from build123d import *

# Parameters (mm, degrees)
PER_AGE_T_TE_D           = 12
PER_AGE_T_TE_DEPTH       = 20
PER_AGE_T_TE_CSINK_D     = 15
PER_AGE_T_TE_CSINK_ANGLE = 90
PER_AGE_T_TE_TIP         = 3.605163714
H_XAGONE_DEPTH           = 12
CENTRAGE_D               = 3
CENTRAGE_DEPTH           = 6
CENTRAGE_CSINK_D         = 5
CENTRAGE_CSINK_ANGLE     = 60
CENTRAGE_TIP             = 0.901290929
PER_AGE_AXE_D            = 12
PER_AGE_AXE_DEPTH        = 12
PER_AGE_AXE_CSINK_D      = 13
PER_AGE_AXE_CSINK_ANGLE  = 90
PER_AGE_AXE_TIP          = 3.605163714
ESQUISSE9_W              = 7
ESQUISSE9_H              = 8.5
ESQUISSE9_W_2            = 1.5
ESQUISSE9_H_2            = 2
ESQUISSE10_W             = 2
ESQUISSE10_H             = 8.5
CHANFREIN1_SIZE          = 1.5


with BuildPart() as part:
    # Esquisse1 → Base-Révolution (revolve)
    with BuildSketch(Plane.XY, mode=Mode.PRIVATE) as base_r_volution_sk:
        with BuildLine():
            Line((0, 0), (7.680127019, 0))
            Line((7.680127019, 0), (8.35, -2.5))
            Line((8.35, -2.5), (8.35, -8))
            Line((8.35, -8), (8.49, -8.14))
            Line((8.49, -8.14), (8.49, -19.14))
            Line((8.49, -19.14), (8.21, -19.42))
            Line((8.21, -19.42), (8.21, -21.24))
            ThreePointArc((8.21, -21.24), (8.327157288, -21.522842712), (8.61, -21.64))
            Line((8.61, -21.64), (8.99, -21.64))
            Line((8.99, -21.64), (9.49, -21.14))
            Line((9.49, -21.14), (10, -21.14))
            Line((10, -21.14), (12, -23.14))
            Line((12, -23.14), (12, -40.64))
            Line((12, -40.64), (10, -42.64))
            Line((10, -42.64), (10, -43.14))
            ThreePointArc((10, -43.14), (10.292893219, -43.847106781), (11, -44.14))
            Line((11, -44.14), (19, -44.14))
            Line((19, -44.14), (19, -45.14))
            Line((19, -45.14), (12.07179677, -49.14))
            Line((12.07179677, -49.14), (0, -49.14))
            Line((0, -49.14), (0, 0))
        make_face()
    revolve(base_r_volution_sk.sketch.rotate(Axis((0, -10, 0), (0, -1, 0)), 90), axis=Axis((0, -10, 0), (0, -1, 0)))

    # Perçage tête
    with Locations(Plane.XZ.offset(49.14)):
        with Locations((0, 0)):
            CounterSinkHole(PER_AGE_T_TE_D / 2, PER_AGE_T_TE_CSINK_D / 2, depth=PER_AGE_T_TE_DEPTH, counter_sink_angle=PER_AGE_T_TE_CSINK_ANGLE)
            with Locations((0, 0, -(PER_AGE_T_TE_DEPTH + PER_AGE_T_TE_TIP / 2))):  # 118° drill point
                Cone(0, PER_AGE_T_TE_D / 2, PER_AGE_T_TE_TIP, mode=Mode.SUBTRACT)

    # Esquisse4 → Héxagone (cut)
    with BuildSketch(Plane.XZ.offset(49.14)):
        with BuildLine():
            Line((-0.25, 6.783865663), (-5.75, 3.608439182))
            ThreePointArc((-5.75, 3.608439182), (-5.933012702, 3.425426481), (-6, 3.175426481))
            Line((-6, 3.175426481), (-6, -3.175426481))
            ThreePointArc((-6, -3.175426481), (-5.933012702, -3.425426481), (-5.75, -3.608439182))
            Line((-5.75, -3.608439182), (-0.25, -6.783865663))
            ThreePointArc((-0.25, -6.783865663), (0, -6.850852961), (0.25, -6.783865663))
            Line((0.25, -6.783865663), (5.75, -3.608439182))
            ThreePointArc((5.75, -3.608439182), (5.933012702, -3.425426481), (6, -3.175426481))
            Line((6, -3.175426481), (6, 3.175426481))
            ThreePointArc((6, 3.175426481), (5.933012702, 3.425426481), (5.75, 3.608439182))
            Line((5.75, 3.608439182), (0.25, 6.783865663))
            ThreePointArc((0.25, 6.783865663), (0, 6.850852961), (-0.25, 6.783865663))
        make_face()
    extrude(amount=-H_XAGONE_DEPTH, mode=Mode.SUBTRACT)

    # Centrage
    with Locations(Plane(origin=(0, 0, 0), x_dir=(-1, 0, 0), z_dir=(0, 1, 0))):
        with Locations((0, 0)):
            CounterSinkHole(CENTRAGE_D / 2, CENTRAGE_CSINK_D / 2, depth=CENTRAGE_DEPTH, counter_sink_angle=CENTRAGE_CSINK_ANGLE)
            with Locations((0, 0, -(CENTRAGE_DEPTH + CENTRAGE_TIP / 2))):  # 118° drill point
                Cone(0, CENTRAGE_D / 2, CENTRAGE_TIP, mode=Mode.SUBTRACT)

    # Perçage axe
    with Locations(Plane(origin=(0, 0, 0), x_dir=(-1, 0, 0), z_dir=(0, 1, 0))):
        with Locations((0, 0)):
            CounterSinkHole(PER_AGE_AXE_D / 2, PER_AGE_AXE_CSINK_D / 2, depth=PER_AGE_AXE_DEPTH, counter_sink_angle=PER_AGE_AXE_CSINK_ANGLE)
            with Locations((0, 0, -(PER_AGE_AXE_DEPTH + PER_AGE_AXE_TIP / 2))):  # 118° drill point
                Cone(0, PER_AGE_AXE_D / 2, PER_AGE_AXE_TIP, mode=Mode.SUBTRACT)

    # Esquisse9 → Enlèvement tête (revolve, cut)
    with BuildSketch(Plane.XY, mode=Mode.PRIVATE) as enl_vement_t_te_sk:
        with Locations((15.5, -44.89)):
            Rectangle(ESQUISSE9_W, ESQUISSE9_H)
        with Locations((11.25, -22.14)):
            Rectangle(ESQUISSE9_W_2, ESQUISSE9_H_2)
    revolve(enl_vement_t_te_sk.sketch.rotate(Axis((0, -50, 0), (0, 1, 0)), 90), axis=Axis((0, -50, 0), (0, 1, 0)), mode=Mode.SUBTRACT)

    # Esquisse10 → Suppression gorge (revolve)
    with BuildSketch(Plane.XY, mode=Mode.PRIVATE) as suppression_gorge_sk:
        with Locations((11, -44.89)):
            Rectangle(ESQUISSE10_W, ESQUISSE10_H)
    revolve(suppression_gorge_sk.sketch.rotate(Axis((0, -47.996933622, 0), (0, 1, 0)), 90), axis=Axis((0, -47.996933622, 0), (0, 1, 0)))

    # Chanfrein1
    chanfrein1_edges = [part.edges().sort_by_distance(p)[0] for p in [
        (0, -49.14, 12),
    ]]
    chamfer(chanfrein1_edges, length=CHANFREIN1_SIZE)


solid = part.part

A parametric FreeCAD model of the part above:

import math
import FreeCAD as App
import Part
import Sketcher

V = App.Vector
Q = App.Units.Quantity


def edges_at(feature, points):
    """Names of the edges that pass closest to the given points."""
    edges = feature.Shape.Edges
    near = lambda p: min(range(len(edges)), key=lambda i: edges[i].distToShape(Part.Vertex(*p))[0])
    return sorted({f"Edge{near(p) + 1}" for p in points})

doc = App.newDocument("Part")
body = doc.addObject("PartDesign::Body", "Body")

# Sketch on XY plane
sketch1 = body.newObject("Sketcher::SketchObject", "Sketch")
sketch1.AttachmentSupport = (doc.getObject("XY_Plane"), [""])
sketch1.MapMode = "FlatFace"
sketch1.addGeometry(Part.LineSegment(V(7.68, 0, 0), V(0, 0, 0)), False)
sketch1.addGeometry(Part.LineSegment(V(0, 0, 0), V(0, -49.14, 0)), False)
sketch1.addGeometry(Part.LineSegment(V(0, -49.14, 0), V(12.07, -49.14, 0)), False)
sketch1.addGeometry(Part.LineSegment(V(12.07, -49.14, 0), V(19, -45.14, 0)), False)
sketch1.addGeometry(Part.LineSegment(V(19, -45.14, 0), V(19, -44.14, 0)), False)
sketch1.addGeometry(Part.LineSegment(V(19, -44.14, 0), V(11, -44.14, 0)), False)
sketch1.addGeometry(Part.ArcOfCircle(Part.Circle(V(11, -43.14, 0), V(0, 0, 1), 1), math.radians(-180), math.radians(-90)), False)
sketch1.addGeometry(Part.LineSegment(V(10, -43.14, 0), V(10, -42.64, 0)), False)
sketch1.addGeometry(Part.LineSegment(V(10, -42.64, 0), V(12, -40.64, 0)), False)
sketch1.addGeometry(Part.LineSegment(V(12, -40.64, 0), V(12, -23.14, 0)), False)
sketch1.addGeometry(Part.LineSegment(V(12, -23.14, 0), V(10, -21.14, 0)), False)
sketch1.addGeometry(Part.LineSegment(V(10, -21.14, 0), V(9.49, -21.14, 0)), False)
sketch1.addGeometry(Part.LineSegment(V(9.49, -21.14, 0), V(8.99, -21.64, 0)), False)
sketch1.addGeometry(Part.LineSegment(V(8.99, -21.64, 0), V(8.61, -21.64, 0)), False)
sketch1.addGeometry(Part.ArcOfCircle(Part.Circle(V(8.61, -21.24, 0), V(0, 0, 1), 0.4), math.radians(-180), math.radians(-90)), False)
sketch1.addGeometry(Part.LineSegment(V(8.21, -21.24, 0), V(8.21, -19.42, 0)), False)
sketch1.addGeometry(Part.LineSegment(V(8.21, -19.42, 0), V(8.49, -19.14, 0)), False)
sketch1.addGeometry(Part.LineSegment(V(8.49, -19.14, 0), V(8.49, -8.14, 0)), False)
sketch1.addGeometry(Part.LineSegment(V(8.49, -8.14, 0), V(8.35, -8, 0)), False)
sketch1.addGeometry(Part.LineSegment(V(8.35, -8, 0), V(8.35, -2.5, 0)), False)
sketch1.addGeometry(Part.LineSegment(V(8.35, -2.5, 0), V(7.68, 0, 0)), False)
sketch1.addConstraint(Sketcher.Constraint("Coincident", 0, 2, 1, 1))
sketch1.addConstraint(Sketcher.Constraint("Coincident", 1, 2, 2, 1))
sketch1.addConstraint(Sketcher.Constraint("Coincident", 2, 2, 3, 1))
sketch1.addConstraint(Sketcher.Constraint("Coincident", 3, 2, 4, 1))
sketch1.addConstraint(Sketcher.Constraint("Coincident", 4, 2, 5, 1))
sketch1.addConstraint(Sketcher.Constraint("Tangent", 5, 2, 6, 2))
sketch1.addConstraint(Sketcher.Constraint("Tangent", 6, 1, 7, 1))
sketch1.addConstraint(Sketcher.Constraint("Coincident", 7, 2, 8, 1))
sketch1.addConstraint(Sketcher.Constraint("Coincident", 8, 2, 9, 1))
sketch1.addConstraint(Sketcher.Constraint("Coincident", 9, 2, 10, 1))
sketch1.addConstraint(Sketcher.Constraint("Coincident", 10, 2, 11, 1))
sketch1.addConstraint(Sketcher.Constraint("Coincident", 11, 2, 12, 1))
sketch1.addConstraint(Sketcher.Constraint("Coincident", 12, 2, 13, 1))
sketch1.addConstraint(Sketcher.Constraint("Tangent", 13, 2, 14, 2))
sketch1.addConstraint(Sketcher.Constraint("Tangent", 14, 1, 15, 1))
sketch1.addConstraint(Sketcher.Constraint("Coincident", 15, 2, 16, 1))
sketch1.addConstraint(Sketcher.Constraint("Coincident", 16, 2, 17, 1))
sketch1.addConstraint(Sketcher.Constraint("Coincident", 17, 2, 18, 1))
sketch1.addConstraint(Sketcher.Constraint("Coincident", 18, 2, 19, 1))
sketch1.addConstraint(Sketcher.Constraint("Coincident", 19, 2, 20, 1))
sketch1.addConstraint(Sketcher.Constraint("Coincident", 20, 2, 0, 1))
sketch1.addConstraint(Sketcher.Constraint("Horizontal", 0))
sketch1.addConstraint(Sketcher.Constraint("Vertical", 1))
sketch1.addConstraint(Sketcher.Constraint("Horizontal", 2))
sketch1.addConstraint(Sketcher.Constraint("Vertical", 4))
sketch1.addConstraint(Sketcher.Constraint("Horizontal", 5))
sketch1.addConstraint(Sketcher.Constraint("Vertical", 7))
sketch1.addConstraint(Sketcher.Constraint("Vertical", 9))
sketch1.addConstraint(Sketcher.Constraint("Horizontal", 11))
sketch1.addConstraint(Sketcher.Constraint("Horizontal", 13))
sketch1.addConstraint(Sketcher.Constraint("Vertical", 15))
sketch1.addConstraint(Sketcher.Constraint("Vertical", 17))
sketch1.addConstraint(Sketcher.Constraint("Vertical", 19))
sketch1.addConstraint(Sketcher.Constraint("Coincident", 0, 2, -1, 1))
sketch1.addConstraint(Sketcher.Constraint("Perpendicular", 8, 10))
sketch1.addConstraint(Sketcher.Constraint("Perpendicular", 10, 12))
sketch1.addConstraint(Sketcher.Constraint("Parallel", 12, 16))
sketch1.addConstraint(Sketcher.Constraint("Perpendicular", 16, 18))
sketch1.addConstraint(Sketcher.Constraint("Vertical", 7, 2, 10, 2))
sketch1.addConstraint(Sketcher.Constraint("Equal", 8, 10))
sketch1.addConstraint(Sketcher.Constraint("Radius", 6, Q("1 mm")))
sketch1.addConstraint(Sketcher.Constraint("Radius", 14, Q("0.4 mm")))
sketch1.addConstraint(Sketcher.Constraint("DistanceX", 5, 2, 5, 1, Q("8 mm")))
sketch1.addConstraint(Sketcher.Constraint("DistanceY", 4, 1, 4, 2, Q("1 mm")))
sketch1.addConstraint(Sketcher.Constraint("DistanceY", 17, 1, 17, 2, Q("11 mm")))
sketch1.addConstraint(Sketcher.Constraint("Angle", 3, Q("30 deg")))
sketch1.addConstraint(Sketcher.Constraint("Angle", 20, Q("105 deg")))
sketch1.addConstraint(Sketcher.Constraint("Distance", 3, Q("8 mm")))
sketch1.addConstraint(Sketcher.Constraint("DistanceY", 7, 1, 7, 2, Q("0.5 mm")))
sketch1.addConstraint(Sketcher.Constraint("DistanceY", 9, 1, 9, 2, Q("17.5 mm")))
sketch1.addConstraint(Sketcher.Constraint("DistanceY", 19, 1, 19, 2, Q("5.5 mm")))
sketch1.addConstraint(Sketcher.Constraint("DistanceX", -1, 1, 6, 3, Q("11 mm")))
sketch1.addConstraint(Sketcher.Constraint("DistanceX", -1, 1, 8, 2, Q("12 mm")))
sketch1.addConstraint(Sketcher.Constraint("DistanceY", 18, 2, -1, 1, Q("8 mm")))
sketch1.addConstraint(Sketcher.Constraint("DistanceY", 8, 2, 12, 2, Q("19 mm")))
sketch1.addConstraint(Sketcher.Constraint("DistanceX", 16, 2, 11, 2, Q("1 mm")))
sketch1.addConstraint(Sketcher.Constraint("DistanceY", 11, 2, 16, 2, Q("2 mm")))
sketch1.addConstraint(Sketcher.Constraint("DistanceX", 11, 2, 11, 1, Q("0.51 mm")))
sketch1.addConstraint(Sketcher.Constraint("DistanceX", 13, 2, 13, 1, Q("0.38 mm")))
sketch1.addConstraint(Sketcher.Constraint("DistanceY", 1, 2, 1, 1, Q("49.14 mm")))
revolution = body.newObject("PartDesign::Revolution", "Revolution")
revolution.Profile = sketch1
revolution.ReferenceAxis = (sketch1, ["V_Axis"])
revolution.Angle = 360

# Sketch on XZ plane
sketch2 = body.newObject("Sketcher::SketchObject", "Sketch001")
sketch2.AttachmentSupport = (doc.getObject("XZ_Plane"), [""])
sketch2.MapMode = "FlatFace"
sketch2.AttachmentOffset = App.Placement(V(0, 0, 49.14), App.Rotation())
sketch2.addGeometry(Part.Circle(V(0, 0, 0), V(0, 0, 1), 6), False)
sketch2.addConstraint(Sketcher.Constraint("Coincident", 0, 3, -1, 1))
sketch2.addConstraint(Sketcher.Constraint("Diameter", 0, Q("12 mm")))
doc.recompute()
hole = body.newObject("PartDesign::Hole", "Hole")
hole.Profile = sketch2
hole.ThreadType = "None"
hole.Diameter = 12
hole.DepthType = "Dimension"
hole.Depth = 20
hole.DrillPoint = "Angled"
hole.DrillPointAngle = 118
hole.HoleCutType = "Countersink"
hole.HoleCutDiameter = 15
hole.HoleCutCountersinkAngle = 90

# Sketch on XZ plane
sketch3 = body.newObject("Sketcher::SketchObject", "Sketch002")
sketch3.AttachmentSupport = (doc.getObject("XZ_Plane"), [""])
sketch3.MapMode = "FlatFace"
sketch3.AttachmentOffset = App.Placement(V(0, 0, 49.14), App.Rotation())
sketch3.addGeometry(Part.LineSegment(V(-0.25, 6.78, 0), V(-5.75, 3.61, 0)), False)
sketch3.addGeometry(Part.ArcOfCircle(Part.Circle(V(-5.5, 3.18, 0), V(0, 0, 1), 0.5), math.radians(120), math.radians(180)), False)
sketch3.addGeometry(Part.LineSegment(V(-6, 3.18, 0), V(-6, -3.18, 0)), False)
sketch3.addGeometry(Part.ArcOfCircle(Part.Circle(V(-5.5, -3.18, 0), V(0, 0, 1), 0.5), math.radians(180), math.radians(240)), False)
sketch3.addGeometry(Part.LineSegment(V(-5.75, -3.61, 0), V(-0.25, -6.78, 0)), False)
sketch3.addGeometry(Part.ArcOfCircle(Part.Circle(V(0, -6.35, 0), V(0, 0, 1), 0.5), math.radians(-120), math.radians(-60)), False)
sketch3.addGeometry(Part.LineSegment(V(0.25, -6.78, 0), V(5.75, -3.61, 0)), False)
sketch3.addGeometry(Part.ArcOfCircle(Part.Circle(V(5.5, -3.18, 0), V(0, 0, 1), 0.5), math.radians(-60), math.radians(0)), False)
sketch3.addGeometry(Part.LineSegment(V(6, -3.18, 0), V(6, 3.18, 0)), False)
sketch3.addGeometry(Part.ArcOfCircle(Part.Circle(V(5.5, 3.18, 0), V(0, 0, 1), 0.5), math.radians(0), math.radians(60)), False)
sketch3.addGeometry(Part.LineSegment(V(5.75, 3.61, 0), V(0.25, 6.78, 0)), False)
sketch3.addGeometry(Part.ArcOfCircle(Part.Circle(V(0, 6.35, 0), V(0, 0, 1), 0.5), math.radians(60), math.radians(120)), False)
sketch3.addConstraint(Sketcher.Constraint("Tangent", 0, 2, 1, 1))
sketch3.addConstraint(Sketcher.Constraint("Tangent", 1, 2, 2, 1))
sketch3.addConstraint(Sketcher.Constraint("Tangent", 2, 2, 3, 1))
sketch3.addConstraint(Sketcher.Constraint("Tangent", 3, 2, 4, 1))
sketch3.addConstraint(Sketcher.Constraint("Tangent", 4, 2, 5, 1))
sketch3.addConstraint(Sketcher.Constraint("Tangent", 5, 2, 6, 1))
sketch3.addConstraint(Sketcher.Constraint("Tangent", 6, 2, 7, 1))
sketch3.addConstraint(Sketcher.Constraint("Tangent", 7, 2, 8, 1))
sketch3.addConstraint(Sketcher.Constraint("Tangent", 8, 2, 9, 1))
sketch3.addConstraint(Sketcher.Constraint("Tangent", 9, 2, 10, 1))
sketch3.addConstraint(Sketcher.Constraint("Tangent", 10, 2, 11, 1))
sketch3.addConstraint(Sketcher.Constraint("Tangent", 11, 2, 0, 1))
sketch3.addConstraint(Sketcher.Constraint("Vertical", 2))
sketch3.addConstraint(Sketcher.Constraint("Vertical", 8))
sketch3.addConstraint(Sketcher.Constraint("Equal", 1, 3))
sketch3.addConstraint(Sketcher.Constraint("Equal", 3, 5))
sketch3.addConstraint(Sketcher.Constraint("Equal", 5, 7))
sketch3.addConstraint(Sketcher.Constraint("Equal", 7, 9))
sketch3.addConstraint(Sketcher.Constraint("Equal", 9, 11))
sketch3.addConstraint(Sketcher.Constraint("Symmetric", 1, 3, 7, 3, -1, 1))
sketch3.addConstraint(Sketcher.Constraint("Symmetric", 5, 3, 11, 3, -1, 1))
sketch3.addConstraint(Sketcher.Constraint("Symmetric", 4, 2, 5, 2, -2))
sketch3.addConstraint(Sketcher.Constraint("Parallel", 4, 10))
sketch3.addConstraint(Sketcher.Constraint("Radius", 1, Q("0.5 mm")))
sketch3.addConstraint(Sketcher.Constraint("Angle", 0, Q("-150 deg")))
sketch3.addConstraint(Sketcher.Constraint("DistanceX", 1, 2, -1, 1, Q("6 mm")))
sketch3.addConstraint(Sketcher.Constraint("DistanceY", 2, 2, 2, 1, Q("6.350853 mm")))
pocket1 = body.newObject("PartDesign::Pocket", "Pocket")
pocket1.Profile = sketch3
pocket1.Length = 12

# Sketch on XZ plane
sketch4 = body.newObject("Sketcher::SketchObject", "Sketch003")
sketch4.AttachmentSupport = (doc.getObject("XZ_Plane"), [""])
sketch4.MapMode = "FlatFace"
sketch4.addGeometry(Part.Circle(V(0, 0, 0), V(0, 0, 1), 1.5), False)
sketch4.addConstraint(Sketcher.Constraint("Coincident", 0, 3, -1, 1))
sketch4.addConstraint(Sketcher.Constraint("Diameter", 0, Q("3 mm")))
doc.recompute()
hole2 = body.newObject("PartDesign::Hole", "Hole001")
hole2.Profile = sketch4
hole2.ThreadType = "None"
hole2.Diameter = 3
hole2.DepthType = "Dimension"
hole2.Depth = 6
hole2.DrillPoint = "Angled"
hole2.DrillPointAngle = 118
hole2.HoleCutType = "Countersink"
hole2.HoleCutDiameter = 5
hole2.HoleCutCountersinkAngle = 60
hole2.Reversed = True

# Sketch on XZ plane
sketch5 = body.newObject("Sketcher::SketchObject", "Sketch004")
sketch5.AttachmentSupport = (doc.getObject("XZ_Plane"), [""])
sketch5.MapMode = "FlatFace"
sketch5.addGeometry(Part.Circle(V(0, 0, 0), V(0, 0, 1), 6), False)
sketch5.addConstraint(Sketcher.Constraint("Coincident", 0, 3, -1, 1))
sketch5.addConstraint(Sketcher.Constraint("Diameter", 0, Q("12 mm")))
doc.recompute()
hole3 = body.newObject("PartDesign::Hole", "Hole002")
hole3.Profile = sketch5
hole3.ThreadType = "None"
hole3.Diameter = 12
hole3.DepthType = "Dimension"
hole3.Depth = 12
hole3.DrillPoint = "Angled"
hole3.DrillPointAngle = 118
hole3.HoleCutType = "Countersink"
hole3.HoleCutDiameter = 13
hole3.HoleCutCountersinkAngle = 90
hole3.Reversed = True

# Sketch on XY plane
sketch6 = body.newObject("Sketcher::SketchObject", "Sketch005")
sketch6.AttachmentSupport = (doc.getObject("XY_Plane"), [""])
sketch6.MapMode = "FlatFace"
sketch6.addGeometry(Part.LineSegment(V(12, -40.6, 0), V(12, -49.1, 0)), False)
sketch6.addGeometry(Part.LineSegment(V(12, -49.1, 0), V(19, -49.1, 0)), False)
sketch6.addGeometry(Part.LineSegment(V(19, -49.1, 0), V(19, -40.6, 0)), False)
sketch6.addGeometry(Part.LineSegment(V(19, -40.6, 0), V(12, -40.6, 0)), False)
sketch6.addGeometry(Part.LineSegment(V(10.5, -21.1, 0), V(10.5, -23.1, 0)), False)
sketch6.addGeometry(Part.LineSegment(V(10.5, -23.1, 0), V(12, -23.1, 0)), False)
sketch6.addGeometry(Part.LineSegment(V(12, -23.1, 0), V(12, -21.1, 0)), False)
sketch6.addGeometry(Part.LineSegment(V(12, -21.1, 0), V(10.5, -21.1, 0)), False)
sketch6.addConstraint(Sketcher.Constraint("Coincident", 0, 2, 1, 1))
sketch6.addConstraint(Sketcher.Constraint("Coincident", 1, 2, 2, 1))
sketch6.addConstraint(Sketcher.Constraint("Coincident", 2, 2, 3, 1))
sketch6.addConstraint(Sketcher.Constraint("Coincident", 3, 2, 0, 1))
sketch6.addConstraint(Sketcher.Constraint("Coincident", 4, 2, 5, 1))
sketch6.addConstraint(Sketcher.Constraint("Coincident", 5, 2, 6, 1))
sketch6.addConstraint(Sketcher.Constraint("Coincident", 6, 2, 7, 1))
sketch6.addConstraint(Sketcher.Constraint("Coincident", 7, 2, 4, 1))
sketch6.addConstraint(Sketcher.Constraint("Vertical", 0))
sketch6.addConstraint(Sketcher.Constraint("Horizontal", 1))
sketch6.addConstraint(Sketcher.Constraint("Vertical", 2))
sketch6.addConstraint(Sketcher.Constraint("Horizontal", 3))
sketch6.addConstraint(Sketcher.Constraint("Vertical", 4))
sketch6.addConstraint(Sketcher.Constraint("Horizontal", 5))
sketch6.addConstraint(Sketcher.Constraint("Vertical", 6))
sketch6.addConstraint(Sketcher.Constraint("Horizontal", 7))
sketch6.addConstraint(Sketcher.Constraint("Vertical", 3, 2, 5, 2))
sketch6.addConstraint(Sketcher.Constraint("DistanceX", 1, 1, 1, 2, Q("7 mm")))
sketch6.addConstraint(Sketcher.Constraint("DistanceY", 4, 2, 4, 1, Q("2 mm")))
sketch6.addConstraint(Sketcher.Constraint("DistanceX", 5, 1, 5, 2, Q("1.5 mm")))
sketch6.addConstraint(Sketcher.Constraint("DistanceY", 0, 2, 0, 1, Q("8.5 mm")))
sketch6.addConstraint(Sketcher.Constraint("DistanceX", -1, 1, 0, 2, Q("12 mm")))
sketch6.addConstraint(Sketcher.Constraint("DistanceY", 0, 2, 4, 2, Q("26 mm")))
sketch6.addConstraint(Sketcher.Constraint("DistanceY", 0, 2, -1, 1, Q("49.14 mm")))
groove = body.newObject("PartDesign::Groove", "Groove")
groove.Profile = sketch6
groove.ReferenceAxis = (sketch6, ["V_Axis"])
groove.Angle = 360

# Sketch on XY plane
sketch7 = body.newObject("Sketcher::SketchObject", "Sketch006")
sketch7.AttachmentSupport = (doc.getObject("XY_Plane"), [""])
sketch7.MapMode = "FlatFace"
sketch7.addGeometry(Part.LineSegment(V(10, -40.6, 0), V(10, -49.1, 0)), False)
sketch7.addGeometry(Part.LineSegment(V(10, -49.1, 0), V(12, -49.1, 0)), False)
sketch7.addGeometry(Part.LineSegment(V(12, -49.1, 0), V(12, -40.6, 0)), False)
sketch7.addGeometry(Part.LineSegment(V(12, -40.6, 0), V(10, -40.6, 0)), False)
sketch7.addConstraint(Sketcher.Constraint("Coincident", 0, 2, 1, 1))
sketch7.addConstraint(Sketcher.Constraint("Coincident", 1, 2, 2, 1))
sketch7.addConstraint(Sketcher.Constraint("Coincident", 2, 2, 3, 1))
sketch7.addConstraint(Sketcher.Constraint("Coincident", 3, 2, 0, 1))
sketch7.addConstraint(Sketcher.Constraint("Vertical", 0))
sketch7.addConstraint(Sketcher.Constraint("Horizontal", 1))
sketch7.addConstraint(Sketcher.Constraint("Vertical", 2))
sketch7.addConstraint(Sketcher.Constraint("Horizontal", 3))
sketch7.addConstraint(Sketcher.Constraint("DistanceX", 1, 1, 1, 2, Q("2 mm")))
sketch7.addConstraint(Sketcher.Constraint("DistanceY", 0, 2, 0, 1, Q("8.5 mm")))
sketch7.addConstraint(Sketcher.Constraint("DistanceX", -1, 1, 0, 2, Q("10 mm")))
sketch7.addConstraint(Sketcher.Constraint("DistanceY", 0, 2, -1, 1, Q("49.14 mm")))
revolution2 = body.newObject("PartDesign::Revolution", "Revolution001")
revolution2.Profile = sketch7
revolution2.ReferenceAxis = (sketch7, ["V_Axis"])
revolution2.Angle = 360
doc.recompute()

chamfer = body.newObject("PartDesign::Chamfer", "Chamfer")
chamfer.Base = (revolution2, edges_at(revolution2, [(0, -49.14, 12)]))
chamfer.Size = 1.5

doc.recompute()
